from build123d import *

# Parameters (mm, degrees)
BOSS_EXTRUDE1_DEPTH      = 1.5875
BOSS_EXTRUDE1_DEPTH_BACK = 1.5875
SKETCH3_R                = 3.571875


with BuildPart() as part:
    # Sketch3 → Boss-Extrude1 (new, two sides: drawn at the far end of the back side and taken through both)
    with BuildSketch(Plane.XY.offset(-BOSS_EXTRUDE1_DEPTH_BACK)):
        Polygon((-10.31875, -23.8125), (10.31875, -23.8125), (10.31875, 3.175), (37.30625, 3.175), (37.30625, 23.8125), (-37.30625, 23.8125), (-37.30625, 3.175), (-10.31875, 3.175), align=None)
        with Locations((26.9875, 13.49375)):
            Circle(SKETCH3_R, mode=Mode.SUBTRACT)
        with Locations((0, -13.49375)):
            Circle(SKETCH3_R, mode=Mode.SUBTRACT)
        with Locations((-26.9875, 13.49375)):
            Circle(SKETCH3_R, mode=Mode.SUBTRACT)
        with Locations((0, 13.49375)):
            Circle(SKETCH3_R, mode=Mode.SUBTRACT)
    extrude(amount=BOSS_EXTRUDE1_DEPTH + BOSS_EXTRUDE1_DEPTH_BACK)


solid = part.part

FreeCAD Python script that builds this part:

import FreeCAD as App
import Part
import Sketcher
Q = App.Units.Quantity


def add_polygon(sketch, points):
    """Adds a closed chain of lines whose ends are joined by coincident constraints."""
    first, n = sketch.GeometryCount, len(points)
    for a, b in zip(points, points[1:] + points[:1]):
        sketch.addGeometry(Part.LineSegment(App.Vector(*a, 0), App.Vector(*b, 0)), False)
    for i in range(n):
        sketch.addConstraint(Sketcher.Constraint("Coincident", first + i, 2, first + (i + 1) % n, 1))

doc = App.newDocument("Part")
body = doc.addObject("PartDesign::Body", "Body")

sketch1 = body.newObject("Sketcher::SketchObject", "Sketch")
sketch1.AttachmentSupport = (doc.getObject("XY_Plane"), [""])
sketch1.MapMode = "FlatFace"
add_polygon(sketch1, [(-10.3, -23.8), (10.3, -23.8), (10.3, 3.2), (37.3, 3.2), (37.3, 23.8), (-37.3, 23.8), (-37.3, 3.2), (-10.3, 3.2)])
sketch1.addGeometry(Part.Circle(App.Vector(0, -13.5, 0), App.Vector(0, 0, 1), 3.6), False)
sketch1.addGeometry(Part.Circle(App.Vector(-27, 13.5, 0), App.Vector(0, 0, 1), 3.6), False)
sketch1.addGeometry(Part.Circle(App.Vector(0, 13.5, 0), App.Vector(0, 0, 1), 3.6), False)
sketch1.addGeometry(Part.Circle(App.Vector(27, 13.5, 0), App.Vector(0, 0, 1), 3.6), False)
sketch1.addConstraint(Sketcher.Constraint("Horizontal", 0))
sketch1.addConstraint(Sketcher.Constraint("Vertical", 1))
sketch1.addConstraint(Sketcher.Constraint("Horizontal", 2))
sketch1.addConstraint(Sketcher.Constraint("Vertical", 3))
sketch1.addConstraint(Sketcher.Constraint("Horizontal", 4))
sketch1.addConstraint(Sketcher.Constraint("Vertical", 5))
sketch1.addConstraint(Sketcher.Constraint("Horizontal", 6))
sketch1.addConstraint(Sketcher.Constraint("Vertical", 7))
sketch1.addConstraint(Sketcher.Constraint("Equal", 8, 9))
sketch1.addConstraint(Sketcher.Constraint("Equal", 9, 10))
sketch1.addConstraint(Sketcher.Constraint("Equal", 10, 11))
sketch1.addConstraint(Sketcher.Constraint("Symmetric", 8, 3, 10, 3, -1, 1))
sketch1.addConstraint(Sketcher.Constraint("Symmetric", 9, 3, 11, 3, -2))
sketch1.addConstraint(Sketcher.Constraint("Symmetric", 2, 2, 5, 2, -2))
sketch1.addConstraint(Sketcher.Constraint("PointOnObject", 8, 3, -2))
sketch1.addConstraint(Sketcher.Constraint("Horizontal", 9, 3, 10, 3))
sketch1.addConstraint(Sketcher.Constraint("Equal", 2, 6))
sketch1.addConstraint(Sketcher.Constraint("Equal", 6, 1))
sketch1.addConstraint(Sketcher.Constraint("Equal", 0, 3))
sketch1.addConstraint(Sketcher.Constraint("Diameter", 8, Q("0.28125 in")))
sketch1.addConstraint(Sketcher.Constraint("DistanceX", 0, 1, 0, 2, Q("0.8125 in")))
sketch1.addConstraint(Sketcher.Constraint("DistanceX", 2, 1, 2, 2, Q("1.0625 in")))
sketch1.addConstraint(Sketcher.Constraint("DistanceY", 8, 3, -1, 1, Q("0.53125 in")))
sketch1.addConstraint(Sketcher.Constraint("DistanceX", 9, 3, -1, 1, Q("1.0625 in")))
sketch1.addConstraint(Sketcher.Constraint("DistanceY", 0, 2, -1, 1, Q("0.9375 in")))
pad1 = body.newObject("PartDesign::Pad", "Pad")
pad1.Profile = sketch1
pad1.Type = "TwoLengths"
pad1.Length = Q("0.0625 in")
pad1.Length2 = Q("0.0625 in")

doc.recompute()
